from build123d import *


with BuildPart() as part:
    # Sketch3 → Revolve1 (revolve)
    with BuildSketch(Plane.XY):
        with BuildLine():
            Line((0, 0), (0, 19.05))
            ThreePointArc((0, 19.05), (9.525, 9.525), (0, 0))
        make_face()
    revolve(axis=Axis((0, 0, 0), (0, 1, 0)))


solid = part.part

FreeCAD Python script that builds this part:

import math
import FreeCAD as App
import Part
import Sketcher
Q = App.Units.Quantity

doc = App.newDocument("Part")
body = doc.addObject("PartDesign::Body", "Body")

# Sketch on XY plane
sketch1 = body.newObject("Sketcher::SketchObject", "Sketch")
sketch1.AttachmentSupport = (doc.getObject("XY_Plane"), [""])
sketch1.MapMode = "FlatFace"
sketch1.addGeometry(Part.LineSegment(App.Vector(0, 19, 0), App.Vector(0, 0, 0)), False)
sketch1.addGeometry(Part.ArcOfCircle(Part.Circle(App.Vector(0, 10, 0), App.Vector(0, 0, 1), 10), math.radians(-90), math.radians(90)), False)
sketch1.addConstraint(Sketcher.Constraint("Coincident", 0, 1, 1, 2))
sketch1.addConstraint(Sketcher.Constraint("Coincident", 1, 1, 0, 2))
sketch1.addConstraint(Sketcher.Constraint("Vertical", 0))
sketch1.addConstraint(Sketcher.Constraint("Coincident", 1, 1, -1, 1))
sketch1.addConstraint(Sketcher.Constraint("PointOnObject", 1, 3, -2))
sketch1.addConstraint(Sketcher.Constraint("Radius", 1, Q("0.375 in")))
revolution = body.newObject("PartDesign::Revolution", "Revolution")
revolution.Profile = sketch1
revolution.ReferenceAxis = (sketch1, ["V_Axis"])
revolution.Angle = 360

doc.recompute()
